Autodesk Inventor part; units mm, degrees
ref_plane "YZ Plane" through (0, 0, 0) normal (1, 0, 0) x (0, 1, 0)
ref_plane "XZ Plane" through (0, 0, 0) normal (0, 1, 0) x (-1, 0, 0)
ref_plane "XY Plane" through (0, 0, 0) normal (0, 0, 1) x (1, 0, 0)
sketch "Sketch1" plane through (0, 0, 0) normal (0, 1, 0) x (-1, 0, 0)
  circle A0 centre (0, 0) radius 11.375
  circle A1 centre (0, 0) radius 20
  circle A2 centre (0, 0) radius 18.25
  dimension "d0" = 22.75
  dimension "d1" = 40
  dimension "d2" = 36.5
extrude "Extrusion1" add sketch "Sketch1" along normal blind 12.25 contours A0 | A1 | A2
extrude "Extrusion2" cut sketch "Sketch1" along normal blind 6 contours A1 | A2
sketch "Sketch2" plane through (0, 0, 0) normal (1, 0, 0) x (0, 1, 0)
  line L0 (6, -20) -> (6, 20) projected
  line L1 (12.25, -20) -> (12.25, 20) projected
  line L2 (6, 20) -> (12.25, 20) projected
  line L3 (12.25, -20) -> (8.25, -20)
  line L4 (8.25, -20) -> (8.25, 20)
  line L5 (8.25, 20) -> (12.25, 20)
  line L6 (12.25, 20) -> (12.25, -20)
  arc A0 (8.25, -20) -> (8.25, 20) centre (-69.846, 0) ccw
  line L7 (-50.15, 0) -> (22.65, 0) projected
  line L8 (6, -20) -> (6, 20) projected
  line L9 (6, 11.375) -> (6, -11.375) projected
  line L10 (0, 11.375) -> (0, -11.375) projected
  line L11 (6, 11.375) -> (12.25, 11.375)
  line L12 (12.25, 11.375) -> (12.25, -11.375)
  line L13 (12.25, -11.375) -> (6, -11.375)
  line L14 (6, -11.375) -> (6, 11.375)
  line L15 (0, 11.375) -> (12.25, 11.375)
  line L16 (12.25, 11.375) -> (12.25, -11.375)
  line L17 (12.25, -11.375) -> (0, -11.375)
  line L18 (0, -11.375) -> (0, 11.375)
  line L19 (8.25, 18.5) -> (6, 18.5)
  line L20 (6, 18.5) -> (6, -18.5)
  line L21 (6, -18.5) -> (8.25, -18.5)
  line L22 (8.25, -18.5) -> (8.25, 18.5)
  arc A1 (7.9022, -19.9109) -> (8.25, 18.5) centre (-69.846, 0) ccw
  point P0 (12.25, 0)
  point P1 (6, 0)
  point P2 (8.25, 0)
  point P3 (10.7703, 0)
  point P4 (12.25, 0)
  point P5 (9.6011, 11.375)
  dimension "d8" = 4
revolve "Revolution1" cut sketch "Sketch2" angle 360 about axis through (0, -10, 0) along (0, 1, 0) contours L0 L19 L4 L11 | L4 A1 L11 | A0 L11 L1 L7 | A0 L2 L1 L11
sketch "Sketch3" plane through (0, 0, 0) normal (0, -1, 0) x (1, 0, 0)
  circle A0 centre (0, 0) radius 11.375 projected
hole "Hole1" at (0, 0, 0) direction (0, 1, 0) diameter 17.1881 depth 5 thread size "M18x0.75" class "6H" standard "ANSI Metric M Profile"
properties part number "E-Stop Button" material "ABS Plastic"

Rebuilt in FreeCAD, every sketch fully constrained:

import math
import FreeCAD as App
import Part
import Sketcher

V = App.Vector

doc = App.newDocument("Part")
body = doc.addObject("PartDesign::Body", "Body")

# Sketch on XZ plane
sketch1 = doc.addObject("Sketcher::SketchObject", "Sketch")
body.addObject(sketch1)
sketch1.AttachmentSupport = (doc.XZ_Plane, [""])
sketch1.MapMode = "FlatFace"
sketch1.addGeometry(Part.Circle(V(0, 0, 0), V(0, 0, 1), 20), False)
sketch1.addConstraint([
    Sketcher.Constraint("Coincident", 0, 3, -1, 1),
    Sketcher.Constraint("Diameter", 0, 40.0),
])
pad1 = doc.addObject("PartDesign::Pad", "Pad")
body.addObject(pad1)
pad1.Profile = sketch1
pad1.Length = 12.25
pad1.Reversed = True

# Sketch on XZ plane
sketch2 = doc.addObject("Sketcher::SketchObject", "Sketch001")
body.addObject(sketch2)
sketch2.AttachmentSupport = (doc.XZ_Plane, [""])
sketch2.MapMode = "FlatFace"
sketch2.addGeometry([
    Part.Circle(V(0, 0, 0), V(0, 0, 1), 20),
    Part.Circle(V(0, 0, 0), V(0, 0, 1), 11.375),
], False)
sketch2.addConstraint([
    Sketcher.Constraint("Coincident", 0, 3, -1, 1),
    Sketcher.Constraint("Coincident", 1, 3, -1, 1),
    Sketcher.Constraint("Diameter", 0, 40.0),
    Sketcher.Constraint("Diameter", 1, 22.75),
])
pocket1 = doc.addObject("PartDesign::Pocket", "Pocket")
body.addObject(pocket1)
pocket1.Profile = sketch2
pocket1.Length = 6

# Sketch on YZ plane
sketch3 = doc.addObject("Sketcher::SketchObject", "Sketch002")
body.addObject(sketch3)
sketch3.AttachmentSupport = (doc.YZ_Plane, [""])
sketch3.MapMode = "FlatFace"
sketch3.addGeometry([
    Part.LineSegment(V(6, 18.5, 0), V(6, 11.375, 0)),  # 0
    Part.LineSegment(V(6, 11.375, 0), V(9.601092, 11.375, 0)),  # 1
    Part.ArcOfCircle(Part.Circle(V(-69.846, 0, 0), V(0, 0, 1), 80.257252), math.radians(8.148064), math.radians(13.327017)),  # 2
    Part.LineSegment(V(8.25, 18.5, 0), V(6, 18.5, 0)),  # 3
    Part.LineSegment(V(10.770284, 0, 0), V(12.25, 0, 0)),  # 4
    Part.LineSegment(V(12.25, 0, 0), V(12.25, 20, 0)),  # 5
    Part.LineSegment(V(12.25, 20, 0), V(8.25, 20, 0)),  # 6
    Part.ArcOfCircle(Part.Circle(V(-69.846, 0, 0), V(0, 0, 1), 80.616284), math.radians(0), math.radians(14.364448)),  # 7
], False)
sketch3.addConstraint([
    Sketcher.Constraint("Coincident", 0, 2, 1, 1),
    Sketcher.Constraint("Coincident", 1, 2, 2, 1),
    Sketcher.Constraint("Coincident", 2, 2, 3, 1),
    Sketcher.Constraint("Coincident", 3, 2, 0, 1),
    Sketcher.Constraint("Coincident", 4, 2, 5, 1),
    Sketcher.Constraint("Coincident", 5, 2, 6, 1),
    Sketcher.Constraint("Coincident", 6, 2, 7, 2),
    Sketcher.Constraint("Coincident", 7, 1, 4, 1),
    Sketcher.Constraint("Vertical", 0),
    Sketcher.Constraint("Horizontal", 1),
    Sketcher.Constraint("Horizontal", 3),
    Sketcher.Constraint("Horizontal", 4),
    Sketcher.Constraint("Vertical", 5),
    Sketcher.Constraint("Horizontal", 6),
    Sketcher.Constraint("Coincident", 7, 3, 2, 3),
    Sketcher.Constraint("PointOnObject", 2, 3, -1),
    Sketcher.Constraint("PointOnObject", 4, 2, -1),
    Sketcher.Constraint("Vertical", 2, 2, 6, 2),
    Sketcher.Constraint("DistanceX", 6, 2, 6, 1, 4.0),
    Sketcher.Constraint("DistanceY", 5, 1, 5, 2, 20.0),
    Sketcher.Constraint("DistanceX", -1, 1, 0, 2, 6.0),
    Sketcher.Constraint("DistanceX", 3, 2, 3, 1, 2.25),
    Sketcher.Constraint("DistanceY", -1, 1, 2, 2, 18.5),
    Sketcher.Constraint("Radius", 2, 80.2573),
    Sketcher.Constraint("DistanceX", 1, 1, 1, 2, 3.601),
])
groove = doc.addObject("PartDesign::Groove", "Groove")
body.addObject(groove)
groove.Profile = sketch3
groove.ReferenceAxis = (sketch3, ["H_Axis"])
groove.Angle = 360

# Sketch on XZ plane
sketch4 = doc.addObject("Sketcher::SketchObject", "Sketch003")
body.addObject(sketch4)
sketch4.AttachmentSupport = (doc.XZ_Plane, [""])
sketch4.MapMode = "FlatFace"
sketch4.addGeometry(Part.Circle(V(0, 0, 0), V(0, 0, 1), 8.59405), False)
sketch4.addConstraint([
    Sketcher.Constraint("Coincident", 0, 3, -1, 1),
    Sketcher.Constraint("Diameter", 0, 17.188),
])
doc.recompute()
hole = doc.addObject("PartDesign::Hole", "Hole")
body.addObject(hole)
hole.Profile = sketch4
hole.ThreadType = "None"
hole.Diameter = 17.1881
hole.DepthType = "Dimension"
hole.Depth = 5
hole.DrillPoint = "Flat"

doc.recompute()
